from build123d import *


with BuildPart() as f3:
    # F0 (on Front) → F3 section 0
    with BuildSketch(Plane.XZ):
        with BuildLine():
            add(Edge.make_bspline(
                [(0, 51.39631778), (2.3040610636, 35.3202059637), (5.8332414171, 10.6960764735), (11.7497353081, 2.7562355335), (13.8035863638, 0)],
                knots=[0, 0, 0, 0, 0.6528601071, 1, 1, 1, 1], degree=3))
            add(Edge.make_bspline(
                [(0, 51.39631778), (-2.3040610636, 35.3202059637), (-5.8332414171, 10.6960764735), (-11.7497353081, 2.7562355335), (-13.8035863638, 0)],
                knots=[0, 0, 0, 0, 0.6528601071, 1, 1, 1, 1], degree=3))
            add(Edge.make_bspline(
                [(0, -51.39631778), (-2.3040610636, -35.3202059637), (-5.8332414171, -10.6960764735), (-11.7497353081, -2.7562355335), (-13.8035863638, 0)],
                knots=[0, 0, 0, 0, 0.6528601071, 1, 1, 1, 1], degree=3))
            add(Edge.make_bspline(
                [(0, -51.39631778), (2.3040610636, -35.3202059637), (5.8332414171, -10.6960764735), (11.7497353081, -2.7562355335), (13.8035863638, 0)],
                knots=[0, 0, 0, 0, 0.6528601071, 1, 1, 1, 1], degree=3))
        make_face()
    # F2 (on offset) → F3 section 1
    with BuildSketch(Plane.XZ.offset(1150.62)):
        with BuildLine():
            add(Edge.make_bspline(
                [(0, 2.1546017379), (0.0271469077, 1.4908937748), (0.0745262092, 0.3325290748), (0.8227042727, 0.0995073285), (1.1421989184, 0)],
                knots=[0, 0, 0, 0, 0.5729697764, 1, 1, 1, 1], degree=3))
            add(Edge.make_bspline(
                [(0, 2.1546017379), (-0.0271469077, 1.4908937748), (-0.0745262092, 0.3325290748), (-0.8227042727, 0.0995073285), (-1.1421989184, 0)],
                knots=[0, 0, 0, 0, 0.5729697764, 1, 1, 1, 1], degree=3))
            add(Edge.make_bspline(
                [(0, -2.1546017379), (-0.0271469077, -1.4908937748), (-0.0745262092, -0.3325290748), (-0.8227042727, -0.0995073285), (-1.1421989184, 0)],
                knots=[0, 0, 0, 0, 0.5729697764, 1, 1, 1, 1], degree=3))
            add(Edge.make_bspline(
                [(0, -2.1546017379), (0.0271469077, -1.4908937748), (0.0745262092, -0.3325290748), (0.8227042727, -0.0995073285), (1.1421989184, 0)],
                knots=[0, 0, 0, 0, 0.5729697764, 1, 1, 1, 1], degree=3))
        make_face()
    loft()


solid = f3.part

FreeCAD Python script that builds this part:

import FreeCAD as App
import Part
import Sketcher

V = App.Vector

doc = App.newDocument("Part")
body = doc.addObject("PartDesign::Body", "Body")

sketch1 = body.newObject("Sketcher::SketchObject", "Sketch")
sketch1.AttachmentSupport = (doc.getObject("XZ_Plane"), [""])
sketch1.MapMode = "FlatFace"
sketch1.addGeometry([
    Part.BSplineCurve([V(0, 51.396318, 0), V(2.304061, 35.320206, 0), V(5.833241, 10.696076, 0), V(11.749735, 2.756236, 0), V(13.803586, 0, 0)], [4, 1, 4], [0, 0.652860107, 1], False, 3, [1, 1, 1, 1, 1], False),
    Part.BSplineCurve([V(0, 51.396318, 0), V(-2.304061, 35.320206, 0), V(-5.833241, 10.696076, 0), V(-11.749735, 2.756236, 0), V(-13.803586, 0, 0)], [4, 1, 4], [0, 0.652860107, 1], False, 3, [1, 1, 1, 1, 1], False),
    Part.BSplineCurve([V(0, -51.396318, 0), V(-2.304061, -35.320206, 0), V(-5.833241, -10.696076, 0), V(-11.749735, -2.756236, 0), V(-13.803586, 0, 0)], [4, 1, 4], [0, 0.652860107, 1], False, 3, [1, 1, 1, 1, 1], False),
    Part.BSplineCurve([V(0, -51.396318, 0), V(2.304061, -35.320206, 0), V(5.833241, -10.696076, 0), V(11.749735, -2.756236, 0), V(13.803586, 0, 0)], [4, 1, 4], [0, 0.652860107, 1], False, 3, [1, 1, 1, 1, 1], False),
], False)
sketch1.addConstraint([
    Sketcher.Constraint("Block", 0),
    Sketcher.Constraint("Block", 1),
    Sketcher.Constraint("Block", 2),
    Sketcher.Constraint("Block", 3),
])

sketch2 = body.newObject("Sketcher::SketchObject", "Sketch001")
sketch2.AttachmentSupport = (doc.getObject("XZ_Plane"), [""])
sketch2.MapMode = "FlatFace"
sketch2.AttachmentOffset = App.Placement(V(0, 0, 1150.62), App.Rotation())
sketch2.addGeometry([
    Part.BSplineCurve([V(0, 2.154602, 0), V(0.027147, 1.490894, 0), V(0.074526, 0.332529, 0), V(0.822704, 0.099507, 0), V(1.142199, 0, 0)], [4, 1, 4], [0, 0.572969776, 1], False, 3, [1, 1, 1, 1, 1], False),
    Part.BSplineCurve([V(0, 2.154602, 0), V(-0.027147, 1.490894, 0), V(-0.074526, 0.332529, 0), V(-0.822704, 0.099507, 0), V(-1.142199, 0, 0)], [4, 1, 4], [0, 0.572969776, 1], False, 3, [1, 1, 1, 1, 1], False),
    Part.BSplineCurve([V(0, -2.154602, 0), V(-0.027147, -1.490894, 0), V(-0.074526, -0.332529, 0), V(-0.822704, -0.099507, 0), V(-1.142199, 0, 0)], [4, 1, 4], [0, 0.572969776, 1], False, 3, [1, 1, 1, 1, 1], False),
    Part.BSplineCurve([V(0, -2.154602, 0), V(0.027147, -1.490894, 0), V(0.074526, -0.332529, 0), V(0.822704, -0.099507, 0), V(1.142199, 0, 0)], [4, 1, 4], [0, 0.572969776, 1], False, 3, [1, 1, 1, 1, 1], False),
], False)
sketch2.addConstraint([
    Sketcher.Constraint("Block", 0),
    Sketcher.Constraint("Block", 1),
    Sketcher.Constraint("Block", 2),
    Sketcher.Constraint("Block", 3),
])

additiveloft = body.newObject("PartDesign::AdditiveLoft", "AdditiveLoft")
additiveloft.Profile = sketch1
additiveloft.Sections = [sketch2]

doc.recompute()
